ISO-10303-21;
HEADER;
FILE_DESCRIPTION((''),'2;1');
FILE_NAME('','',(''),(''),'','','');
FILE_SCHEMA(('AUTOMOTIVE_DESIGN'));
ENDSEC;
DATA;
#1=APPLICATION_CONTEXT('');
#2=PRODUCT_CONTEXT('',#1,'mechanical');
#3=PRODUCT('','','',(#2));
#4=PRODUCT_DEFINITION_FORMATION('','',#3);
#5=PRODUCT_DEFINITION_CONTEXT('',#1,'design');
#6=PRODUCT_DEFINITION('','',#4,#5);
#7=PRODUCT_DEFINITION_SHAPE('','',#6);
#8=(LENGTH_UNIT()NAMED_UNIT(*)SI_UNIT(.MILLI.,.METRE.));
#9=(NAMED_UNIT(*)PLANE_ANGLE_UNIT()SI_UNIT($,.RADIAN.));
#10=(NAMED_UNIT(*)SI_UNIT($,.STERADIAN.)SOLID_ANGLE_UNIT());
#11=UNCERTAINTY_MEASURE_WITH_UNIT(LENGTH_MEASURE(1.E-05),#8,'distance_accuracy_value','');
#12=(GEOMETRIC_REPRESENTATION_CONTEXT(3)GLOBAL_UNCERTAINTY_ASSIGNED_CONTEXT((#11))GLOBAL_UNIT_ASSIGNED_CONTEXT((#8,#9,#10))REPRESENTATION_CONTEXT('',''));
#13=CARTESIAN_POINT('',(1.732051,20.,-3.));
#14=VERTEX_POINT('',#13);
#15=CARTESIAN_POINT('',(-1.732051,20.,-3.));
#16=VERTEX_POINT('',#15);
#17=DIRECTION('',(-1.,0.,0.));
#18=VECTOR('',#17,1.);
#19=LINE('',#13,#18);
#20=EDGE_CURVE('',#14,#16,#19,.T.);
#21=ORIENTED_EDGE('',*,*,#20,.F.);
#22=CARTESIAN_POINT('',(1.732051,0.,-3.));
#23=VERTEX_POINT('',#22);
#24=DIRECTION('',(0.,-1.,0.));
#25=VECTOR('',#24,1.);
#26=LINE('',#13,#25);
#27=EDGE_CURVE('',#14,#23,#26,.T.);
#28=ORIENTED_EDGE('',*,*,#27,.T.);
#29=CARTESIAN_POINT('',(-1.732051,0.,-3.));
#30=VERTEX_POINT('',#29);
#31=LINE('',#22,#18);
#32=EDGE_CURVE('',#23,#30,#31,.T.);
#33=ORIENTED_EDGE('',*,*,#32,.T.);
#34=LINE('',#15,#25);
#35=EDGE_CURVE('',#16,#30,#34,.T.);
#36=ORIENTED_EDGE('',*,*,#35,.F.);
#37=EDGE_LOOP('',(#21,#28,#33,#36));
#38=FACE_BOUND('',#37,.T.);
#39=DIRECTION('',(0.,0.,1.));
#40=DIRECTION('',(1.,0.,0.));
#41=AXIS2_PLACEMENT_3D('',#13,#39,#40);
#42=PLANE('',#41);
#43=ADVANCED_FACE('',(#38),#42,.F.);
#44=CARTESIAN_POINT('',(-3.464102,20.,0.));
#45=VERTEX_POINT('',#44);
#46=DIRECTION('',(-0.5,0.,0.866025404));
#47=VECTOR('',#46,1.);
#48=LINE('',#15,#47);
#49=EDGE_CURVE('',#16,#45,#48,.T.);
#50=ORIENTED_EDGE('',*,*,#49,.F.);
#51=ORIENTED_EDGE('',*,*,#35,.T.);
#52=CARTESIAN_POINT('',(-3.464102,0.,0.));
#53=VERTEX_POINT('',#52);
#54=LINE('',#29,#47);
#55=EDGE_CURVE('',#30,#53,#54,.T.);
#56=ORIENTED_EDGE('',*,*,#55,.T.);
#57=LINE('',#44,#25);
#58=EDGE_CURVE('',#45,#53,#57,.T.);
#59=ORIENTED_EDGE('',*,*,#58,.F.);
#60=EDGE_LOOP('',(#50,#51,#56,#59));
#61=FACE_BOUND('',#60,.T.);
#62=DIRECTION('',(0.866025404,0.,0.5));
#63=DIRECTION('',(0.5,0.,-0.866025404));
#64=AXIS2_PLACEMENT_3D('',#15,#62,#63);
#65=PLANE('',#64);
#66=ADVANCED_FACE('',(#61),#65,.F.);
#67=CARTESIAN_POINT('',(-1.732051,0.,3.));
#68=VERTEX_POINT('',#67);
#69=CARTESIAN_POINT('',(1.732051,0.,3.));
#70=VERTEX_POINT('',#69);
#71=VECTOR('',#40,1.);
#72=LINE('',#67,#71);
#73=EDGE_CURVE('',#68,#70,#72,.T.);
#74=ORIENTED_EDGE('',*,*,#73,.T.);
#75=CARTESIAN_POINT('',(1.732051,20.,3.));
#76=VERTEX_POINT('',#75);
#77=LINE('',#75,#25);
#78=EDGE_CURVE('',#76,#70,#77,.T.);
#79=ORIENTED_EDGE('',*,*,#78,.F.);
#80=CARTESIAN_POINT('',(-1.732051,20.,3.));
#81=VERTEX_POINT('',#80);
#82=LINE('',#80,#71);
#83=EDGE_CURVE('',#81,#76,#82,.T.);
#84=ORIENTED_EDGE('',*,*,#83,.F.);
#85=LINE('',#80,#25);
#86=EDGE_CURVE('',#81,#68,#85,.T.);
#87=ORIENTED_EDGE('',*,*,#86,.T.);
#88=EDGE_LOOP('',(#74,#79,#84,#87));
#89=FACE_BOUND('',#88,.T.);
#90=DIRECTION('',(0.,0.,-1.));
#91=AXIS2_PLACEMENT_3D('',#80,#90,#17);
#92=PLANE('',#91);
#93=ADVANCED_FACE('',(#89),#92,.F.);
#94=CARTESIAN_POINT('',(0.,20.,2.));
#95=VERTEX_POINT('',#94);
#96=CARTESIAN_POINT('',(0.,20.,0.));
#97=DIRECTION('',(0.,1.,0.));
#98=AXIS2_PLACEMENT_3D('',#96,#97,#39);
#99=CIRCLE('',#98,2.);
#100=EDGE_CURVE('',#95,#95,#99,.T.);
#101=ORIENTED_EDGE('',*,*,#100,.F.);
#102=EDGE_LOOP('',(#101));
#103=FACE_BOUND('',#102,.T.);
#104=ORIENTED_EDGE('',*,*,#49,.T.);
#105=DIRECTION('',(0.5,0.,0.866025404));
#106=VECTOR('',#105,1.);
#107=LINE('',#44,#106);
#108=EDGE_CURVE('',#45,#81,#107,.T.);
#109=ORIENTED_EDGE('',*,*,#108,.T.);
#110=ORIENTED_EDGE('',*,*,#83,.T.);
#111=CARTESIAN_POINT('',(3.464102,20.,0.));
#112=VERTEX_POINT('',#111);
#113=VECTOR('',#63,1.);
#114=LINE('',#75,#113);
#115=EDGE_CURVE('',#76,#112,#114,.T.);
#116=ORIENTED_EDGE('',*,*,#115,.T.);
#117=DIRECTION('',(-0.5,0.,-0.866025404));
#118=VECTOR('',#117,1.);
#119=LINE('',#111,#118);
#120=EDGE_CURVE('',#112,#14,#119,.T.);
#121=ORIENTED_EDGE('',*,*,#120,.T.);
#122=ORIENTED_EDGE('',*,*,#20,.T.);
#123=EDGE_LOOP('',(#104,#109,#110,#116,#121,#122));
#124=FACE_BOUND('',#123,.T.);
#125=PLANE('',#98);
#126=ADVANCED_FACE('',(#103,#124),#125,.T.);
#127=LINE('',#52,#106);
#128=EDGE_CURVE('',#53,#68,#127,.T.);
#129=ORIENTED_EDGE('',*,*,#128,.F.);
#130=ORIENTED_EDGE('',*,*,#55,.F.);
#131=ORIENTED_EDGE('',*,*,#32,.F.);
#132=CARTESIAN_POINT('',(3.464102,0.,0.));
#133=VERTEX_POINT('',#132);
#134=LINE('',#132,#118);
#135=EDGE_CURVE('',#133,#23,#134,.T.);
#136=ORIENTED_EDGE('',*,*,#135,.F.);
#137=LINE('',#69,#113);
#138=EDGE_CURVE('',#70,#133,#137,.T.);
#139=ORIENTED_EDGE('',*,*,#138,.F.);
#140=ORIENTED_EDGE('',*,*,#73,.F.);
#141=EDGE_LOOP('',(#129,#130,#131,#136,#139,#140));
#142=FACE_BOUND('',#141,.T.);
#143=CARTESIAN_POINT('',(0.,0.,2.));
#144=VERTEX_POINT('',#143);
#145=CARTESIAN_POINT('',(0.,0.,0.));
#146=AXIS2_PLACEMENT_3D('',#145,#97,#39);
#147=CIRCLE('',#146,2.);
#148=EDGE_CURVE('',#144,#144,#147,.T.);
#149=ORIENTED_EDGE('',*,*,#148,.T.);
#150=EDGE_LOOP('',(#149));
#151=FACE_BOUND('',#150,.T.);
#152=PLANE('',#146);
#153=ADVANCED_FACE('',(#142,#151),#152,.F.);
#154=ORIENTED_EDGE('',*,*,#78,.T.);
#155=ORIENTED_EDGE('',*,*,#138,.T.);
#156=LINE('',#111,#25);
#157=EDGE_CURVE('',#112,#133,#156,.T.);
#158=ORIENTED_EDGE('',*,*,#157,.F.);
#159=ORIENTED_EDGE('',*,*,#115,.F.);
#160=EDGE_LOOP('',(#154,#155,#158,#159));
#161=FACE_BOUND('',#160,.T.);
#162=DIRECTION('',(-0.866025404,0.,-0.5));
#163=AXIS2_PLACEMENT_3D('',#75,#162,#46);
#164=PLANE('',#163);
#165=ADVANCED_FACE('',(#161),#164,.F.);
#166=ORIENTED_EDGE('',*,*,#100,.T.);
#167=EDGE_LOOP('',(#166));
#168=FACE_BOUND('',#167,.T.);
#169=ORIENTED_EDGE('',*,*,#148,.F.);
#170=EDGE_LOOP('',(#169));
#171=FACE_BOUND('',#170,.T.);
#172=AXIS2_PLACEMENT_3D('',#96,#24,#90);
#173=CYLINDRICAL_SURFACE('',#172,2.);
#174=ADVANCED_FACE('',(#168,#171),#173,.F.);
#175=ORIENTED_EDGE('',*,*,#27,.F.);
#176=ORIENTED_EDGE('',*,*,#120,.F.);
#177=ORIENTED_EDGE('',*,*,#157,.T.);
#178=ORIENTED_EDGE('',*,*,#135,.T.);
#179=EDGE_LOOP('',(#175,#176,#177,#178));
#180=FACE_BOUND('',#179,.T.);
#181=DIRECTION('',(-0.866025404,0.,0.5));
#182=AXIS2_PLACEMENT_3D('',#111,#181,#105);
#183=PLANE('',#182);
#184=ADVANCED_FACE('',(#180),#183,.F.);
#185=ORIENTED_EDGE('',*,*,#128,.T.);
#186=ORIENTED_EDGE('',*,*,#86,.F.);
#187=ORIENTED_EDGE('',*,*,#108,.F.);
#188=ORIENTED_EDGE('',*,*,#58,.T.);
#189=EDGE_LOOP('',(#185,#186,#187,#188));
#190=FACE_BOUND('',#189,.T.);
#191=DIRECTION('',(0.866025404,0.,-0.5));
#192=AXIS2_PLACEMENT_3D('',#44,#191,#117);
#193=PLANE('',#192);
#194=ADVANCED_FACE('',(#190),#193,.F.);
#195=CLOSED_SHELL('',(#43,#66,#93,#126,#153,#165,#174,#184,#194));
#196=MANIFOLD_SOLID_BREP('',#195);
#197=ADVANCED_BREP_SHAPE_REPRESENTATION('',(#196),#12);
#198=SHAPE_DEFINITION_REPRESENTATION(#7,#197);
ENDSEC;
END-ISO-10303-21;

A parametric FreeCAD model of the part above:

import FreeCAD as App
import Part
import Sketcher
Q = App.Units.Quantity

doc = App.newDocument("Part")
body = doc.addObject("PartDesign::Body", "Body")

sketch1 = body.newObject("Sketcher::SketchObject", "Sketch")
sketch1.AttachmentSupport = (doc.getObject("XZ_Plane"), [""])
sketch1.MapMode = "FlatFace"
sketch1.addGeometry(Part.LineSegment(App.Vector(1.732051, 3, 0), App.Vector(3.464102, 0, 0)), False)
sketch1.addGeometry(Part.LineSegment(App.Vector(3.464102, 0, 0), App.Vector(1.732051, -3, 0)), False)
sketch1.addGeometry(Part.LineSegment(App.Vector(1.732051, -3, 0), App.Vector(-1.732051, -3, 0)), False)
sketch1.addGeometry(Part.LineSegment(App.Vector(-1.732051, -3, 0), App.Vector(-3.464102, 0, 0)), False)
sketch1.addGeometry(Part.LineSegment(App.Vector(-3.464102, 0, 0), App.Vector(-1.732051, 3, 0)), False)
sketch1.addGeometry(Part.LineSegment(App.Vector(-1.732051, 3, 0), App.Vector(1.732051, 3, 0)), False)
sketch1.addGeometry(Part.Circle(App.Vector(0, 0, 0), App.Vector(0, 0, 1), 2), False)
sketch1.addConstraint(Sketcher.Constraint("Coincident", 0, 2, 1, 1))
sketch1.addConstraint(Sketcher.Constraint("Coincident", 1, 2, 2, 1))
sketch1.addConstraint(Sketcher.Constraint("Coincident", 2, 2, 3, 1))
sketch1.addConstraint(Sketcher.Constraint("Coincident", 3, 2, 4, 1))
sketch1.addConstraint(Sketcher.Constraint("Coincident", 4, 2, 5, 1))
sketch1.addConstraint(Sketcher.Constraint("Coincident", 5, 2, 0, 1))
sketch1.addConstraint(Sketcher.Constraint("Horizontal", 2))
sketch1.addConstraint(Sketcher.Constraint("Horizontal", 5))
sketch1.addConstraint(Sketcher.Constraint("Coincident", 6, 3, -1, 1))
sketch1.addConstraint(Sketcher.Constraint("Symmetric", 0, 2, 3, 2, -1, 1))
sketch1.addConstraint(Sketcher.Constraint("Symmetric", 1, 2, 4, 2, -1, 1))
sketch1.addConstraint(Sketcher.Constraint("PointOnObject", 0, 2, -1))
sketch1.addConstraint(Sketcher.Constraint("Parallel", 0, 3))
sketch1.addConstraint(Sketcher.Constraint("Vertical", 2, 2, 4, 2))
sketch1.addConstraint(Sketcher.Constraint("Diameter", 6, 4.0))
sketch1.addConstraint(Sketcher.Constraint("Angle", 0, Q("-60 deg")))
sketch1.addConstraint(Sketcher.Constraint("DistanceY", 1, 2, -1, 1, 3.0))
sketch1.addConstraint(Sketcher.Constraint("DistanceX", 2, 2, 2, 1, 3.464102))
pad1 = body.newObject("PartDesign::Pad", "Pad")
pad1.Profile = sketch1
pad1.Length = 20
pad1.Reversed = True

doc.recompute()
